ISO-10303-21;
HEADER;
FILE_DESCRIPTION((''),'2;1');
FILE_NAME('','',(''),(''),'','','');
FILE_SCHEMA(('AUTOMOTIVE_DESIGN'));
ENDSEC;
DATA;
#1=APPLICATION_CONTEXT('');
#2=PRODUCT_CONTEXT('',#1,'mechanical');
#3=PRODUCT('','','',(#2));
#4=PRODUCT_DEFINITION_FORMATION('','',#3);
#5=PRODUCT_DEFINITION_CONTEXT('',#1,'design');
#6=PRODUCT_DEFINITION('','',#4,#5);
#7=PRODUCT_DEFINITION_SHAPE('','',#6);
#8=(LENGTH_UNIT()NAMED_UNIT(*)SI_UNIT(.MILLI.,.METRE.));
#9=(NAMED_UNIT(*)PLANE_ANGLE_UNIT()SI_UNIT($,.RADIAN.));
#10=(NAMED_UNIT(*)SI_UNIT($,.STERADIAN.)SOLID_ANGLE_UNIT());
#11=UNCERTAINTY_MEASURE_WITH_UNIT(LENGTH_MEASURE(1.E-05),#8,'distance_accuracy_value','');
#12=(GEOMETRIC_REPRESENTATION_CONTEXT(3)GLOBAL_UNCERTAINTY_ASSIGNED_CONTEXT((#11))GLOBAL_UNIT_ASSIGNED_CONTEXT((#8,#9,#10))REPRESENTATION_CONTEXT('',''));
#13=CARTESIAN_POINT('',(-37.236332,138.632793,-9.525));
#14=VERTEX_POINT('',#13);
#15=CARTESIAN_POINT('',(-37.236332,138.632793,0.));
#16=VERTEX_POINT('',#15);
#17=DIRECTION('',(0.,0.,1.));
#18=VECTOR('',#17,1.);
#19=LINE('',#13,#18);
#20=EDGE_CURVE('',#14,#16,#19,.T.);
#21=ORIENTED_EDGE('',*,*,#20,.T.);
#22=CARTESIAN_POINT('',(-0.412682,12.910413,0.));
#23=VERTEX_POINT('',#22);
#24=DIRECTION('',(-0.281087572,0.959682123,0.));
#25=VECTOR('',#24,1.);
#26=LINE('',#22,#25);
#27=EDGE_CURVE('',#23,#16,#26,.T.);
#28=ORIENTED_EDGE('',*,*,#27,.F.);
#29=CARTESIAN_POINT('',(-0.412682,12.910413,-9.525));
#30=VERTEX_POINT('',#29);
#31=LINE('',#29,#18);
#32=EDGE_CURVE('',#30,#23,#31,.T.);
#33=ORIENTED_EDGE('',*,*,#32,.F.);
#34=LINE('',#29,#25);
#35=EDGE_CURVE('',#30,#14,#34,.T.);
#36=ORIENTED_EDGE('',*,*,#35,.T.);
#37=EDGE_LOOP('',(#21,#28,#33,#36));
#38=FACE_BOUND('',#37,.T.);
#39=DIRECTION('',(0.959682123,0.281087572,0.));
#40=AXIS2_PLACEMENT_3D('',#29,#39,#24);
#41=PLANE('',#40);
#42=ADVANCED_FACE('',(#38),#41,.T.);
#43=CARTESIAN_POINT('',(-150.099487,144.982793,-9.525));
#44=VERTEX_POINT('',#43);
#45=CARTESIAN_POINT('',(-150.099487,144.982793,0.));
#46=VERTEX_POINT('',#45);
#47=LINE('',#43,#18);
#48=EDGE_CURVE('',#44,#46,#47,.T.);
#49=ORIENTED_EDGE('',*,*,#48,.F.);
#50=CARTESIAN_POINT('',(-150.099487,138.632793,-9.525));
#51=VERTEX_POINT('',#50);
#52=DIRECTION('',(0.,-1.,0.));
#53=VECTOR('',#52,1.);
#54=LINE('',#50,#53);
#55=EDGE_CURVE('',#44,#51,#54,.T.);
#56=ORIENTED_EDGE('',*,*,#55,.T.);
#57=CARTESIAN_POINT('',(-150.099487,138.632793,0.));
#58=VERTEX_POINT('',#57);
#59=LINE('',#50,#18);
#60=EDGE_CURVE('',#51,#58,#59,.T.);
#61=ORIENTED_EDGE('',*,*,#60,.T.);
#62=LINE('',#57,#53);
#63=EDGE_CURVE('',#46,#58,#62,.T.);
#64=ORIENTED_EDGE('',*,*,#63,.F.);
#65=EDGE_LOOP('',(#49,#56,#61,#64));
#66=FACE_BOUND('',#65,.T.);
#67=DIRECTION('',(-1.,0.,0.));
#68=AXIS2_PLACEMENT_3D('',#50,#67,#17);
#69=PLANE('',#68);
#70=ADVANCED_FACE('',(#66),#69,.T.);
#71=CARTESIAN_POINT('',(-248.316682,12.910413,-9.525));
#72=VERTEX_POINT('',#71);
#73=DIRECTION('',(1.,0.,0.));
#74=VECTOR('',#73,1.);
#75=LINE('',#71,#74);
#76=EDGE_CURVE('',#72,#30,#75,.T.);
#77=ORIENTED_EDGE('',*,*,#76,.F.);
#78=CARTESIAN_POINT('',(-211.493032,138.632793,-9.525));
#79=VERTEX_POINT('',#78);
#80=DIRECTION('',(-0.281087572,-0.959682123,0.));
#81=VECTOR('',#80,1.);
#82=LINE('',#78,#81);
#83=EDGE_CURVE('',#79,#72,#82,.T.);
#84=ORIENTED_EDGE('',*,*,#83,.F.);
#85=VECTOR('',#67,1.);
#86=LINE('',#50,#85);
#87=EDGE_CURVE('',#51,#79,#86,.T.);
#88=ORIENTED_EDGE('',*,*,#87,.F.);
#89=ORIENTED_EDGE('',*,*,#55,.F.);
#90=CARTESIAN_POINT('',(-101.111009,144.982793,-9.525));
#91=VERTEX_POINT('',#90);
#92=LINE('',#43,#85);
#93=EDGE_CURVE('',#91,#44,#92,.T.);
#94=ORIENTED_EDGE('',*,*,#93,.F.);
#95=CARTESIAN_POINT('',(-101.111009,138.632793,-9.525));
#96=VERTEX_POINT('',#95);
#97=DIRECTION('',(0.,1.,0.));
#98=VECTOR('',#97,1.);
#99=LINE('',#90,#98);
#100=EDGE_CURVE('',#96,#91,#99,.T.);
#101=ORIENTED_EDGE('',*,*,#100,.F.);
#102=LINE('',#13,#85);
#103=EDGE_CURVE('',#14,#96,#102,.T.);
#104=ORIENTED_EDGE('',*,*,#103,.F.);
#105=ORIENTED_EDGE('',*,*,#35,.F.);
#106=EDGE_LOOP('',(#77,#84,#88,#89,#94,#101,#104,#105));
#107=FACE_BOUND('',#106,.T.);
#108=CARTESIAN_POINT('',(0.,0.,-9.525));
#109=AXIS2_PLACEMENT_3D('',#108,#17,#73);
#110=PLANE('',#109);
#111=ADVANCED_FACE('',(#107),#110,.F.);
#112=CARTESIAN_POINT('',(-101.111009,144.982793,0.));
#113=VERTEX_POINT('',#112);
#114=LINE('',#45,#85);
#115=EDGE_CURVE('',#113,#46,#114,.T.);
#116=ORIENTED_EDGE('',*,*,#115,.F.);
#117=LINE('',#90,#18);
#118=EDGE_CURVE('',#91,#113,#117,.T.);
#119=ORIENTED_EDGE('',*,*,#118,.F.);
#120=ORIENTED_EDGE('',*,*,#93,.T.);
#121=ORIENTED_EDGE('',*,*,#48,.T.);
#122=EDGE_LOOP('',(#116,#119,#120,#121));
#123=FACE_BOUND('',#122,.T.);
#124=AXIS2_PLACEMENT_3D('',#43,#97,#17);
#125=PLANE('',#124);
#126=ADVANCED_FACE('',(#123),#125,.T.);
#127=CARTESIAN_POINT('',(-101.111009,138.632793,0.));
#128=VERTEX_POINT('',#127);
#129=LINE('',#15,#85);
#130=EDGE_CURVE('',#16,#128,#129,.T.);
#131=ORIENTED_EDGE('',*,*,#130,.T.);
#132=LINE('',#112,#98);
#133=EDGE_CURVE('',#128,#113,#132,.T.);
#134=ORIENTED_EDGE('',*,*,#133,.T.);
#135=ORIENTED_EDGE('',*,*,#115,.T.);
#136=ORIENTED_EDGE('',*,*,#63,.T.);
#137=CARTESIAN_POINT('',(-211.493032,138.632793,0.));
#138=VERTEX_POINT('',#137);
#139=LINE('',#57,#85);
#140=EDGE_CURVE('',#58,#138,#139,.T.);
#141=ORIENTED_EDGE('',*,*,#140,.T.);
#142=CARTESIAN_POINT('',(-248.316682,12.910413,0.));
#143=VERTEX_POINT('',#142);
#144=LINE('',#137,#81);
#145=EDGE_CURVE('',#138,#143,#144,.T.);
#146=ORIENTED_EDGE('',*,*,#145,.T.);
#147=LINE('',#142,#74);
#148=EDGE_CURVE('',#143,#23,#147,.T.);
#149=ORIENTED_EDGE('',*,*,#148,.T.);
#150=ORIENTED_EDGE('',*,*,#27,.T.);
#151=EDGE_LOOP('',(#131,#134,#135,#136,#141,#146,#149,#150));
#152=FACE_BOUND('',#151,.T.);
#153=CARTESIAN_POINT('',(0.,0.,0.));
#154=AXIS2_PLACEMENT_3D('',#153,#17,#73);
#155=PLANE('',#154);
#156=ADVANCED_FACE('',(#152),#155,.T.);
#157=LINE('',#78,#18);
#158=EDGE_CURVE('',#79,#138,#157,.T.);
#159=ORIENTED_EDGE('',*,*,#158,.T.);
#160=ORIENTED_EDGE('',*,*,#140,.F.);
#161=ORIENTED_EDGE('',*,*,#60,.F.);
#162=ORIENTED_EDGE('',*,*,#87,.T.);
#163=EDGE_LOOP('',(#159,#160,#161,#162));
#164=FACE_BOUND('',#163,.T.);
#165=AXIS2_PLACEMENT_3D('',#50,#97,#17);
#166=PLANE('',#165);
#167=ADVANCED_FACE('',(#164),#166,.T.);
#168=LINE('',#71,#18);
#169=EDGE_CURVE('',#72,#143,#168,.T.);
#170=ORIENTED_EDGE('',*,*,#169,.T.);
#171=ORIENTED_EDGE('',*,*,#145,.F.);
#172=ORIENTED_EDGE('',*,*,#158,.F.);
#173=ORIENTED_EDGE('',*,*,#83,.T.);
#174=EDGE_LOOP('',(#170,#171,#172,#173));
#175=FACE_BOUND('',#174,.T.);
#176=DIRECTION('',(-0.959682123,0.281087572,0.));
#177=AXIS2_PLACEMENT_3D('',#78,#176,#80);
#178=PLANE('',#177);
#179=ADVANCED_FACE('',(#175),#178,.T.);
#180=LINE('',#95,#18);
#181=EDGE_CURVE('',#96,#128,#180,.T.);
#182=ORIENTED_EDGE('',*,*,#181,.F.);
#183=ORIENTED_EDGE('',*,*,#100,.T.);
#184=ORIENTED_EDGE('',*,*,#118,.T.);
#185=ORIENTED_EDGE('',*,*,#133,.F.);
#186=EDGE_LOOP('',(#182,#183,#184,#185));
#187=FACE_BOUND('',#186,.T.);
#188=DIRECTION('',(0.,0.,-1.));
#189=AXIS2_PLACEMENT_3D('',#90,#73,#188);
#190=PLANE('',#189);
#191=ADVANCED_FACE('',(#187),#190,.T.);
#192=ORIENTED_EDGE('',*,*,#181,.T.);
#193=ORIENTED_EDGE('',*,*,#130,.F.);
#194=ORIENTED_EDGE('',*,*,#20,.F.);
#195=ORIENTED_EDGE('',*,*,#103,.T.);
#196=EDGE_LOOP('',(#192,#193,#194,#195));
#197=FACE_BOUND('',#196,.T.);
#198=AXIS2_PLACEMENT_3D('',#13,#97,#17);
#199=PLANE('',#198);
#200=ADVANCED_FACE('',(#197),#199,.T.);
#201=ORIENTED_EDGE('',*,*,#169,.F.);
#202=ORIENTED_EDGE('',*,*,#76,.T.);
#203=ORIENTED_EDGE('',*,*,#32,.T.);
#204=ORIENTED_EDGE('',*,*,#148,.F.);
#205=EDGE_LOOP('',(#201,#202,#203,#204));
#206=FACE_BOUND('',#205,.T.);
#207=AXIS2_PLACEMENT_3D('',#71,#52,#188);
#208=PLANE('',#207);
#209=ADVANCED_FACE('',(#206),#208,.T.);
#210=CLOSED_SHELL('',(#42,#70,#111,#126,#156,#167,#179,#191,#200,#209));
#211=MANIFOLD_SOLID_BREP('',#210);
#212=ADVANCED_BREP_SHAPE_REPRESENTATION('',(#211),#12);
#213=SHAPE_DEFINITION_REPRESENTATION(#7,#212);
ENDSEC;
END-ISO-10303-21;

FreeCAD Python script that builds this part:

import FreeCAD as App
import Part
import Sketcher
Q = App.Units.Quantity

doc = App.newDocument("Part")
body = doc.addObject("PartDesign::Body", "Body")

sketch1 = body.newObject("Sketcher::SketchObject", "Sketch")
sketch1.AttachmentSupport = (doc.getObject("XY_Plane"), [""])
sketch1.MapMode = "FlatFace"
sketch1.addGeometry([
    Part.LineSegment(App.Vector(-211, 139, 0), App.Vector(-248, 13, 0)),
    Part.LineSegment(App.Vector(-248, 13, 0), App.Vector(0, 13, 0)),
    Part.LineSegment(App.Vector(0, 13, 0), App.Vector(-37, 139, 0)),
    Part.LineSegment(App.Vector(-37, 139, 0), App.Vector(-101, 139, 0)),
    Part.LineSegment(App.Vector(-101, 139, 0), App.Vector(-101, 145, 0)),
    Part.LineSegment(App.Vector(-101, 145, 0), App.Vector(-150, 145, 0)),
    Part.LineSegment(App.Vector(-150, 145, 0), App.Vector(-150, 139, 0)),
    Part.LineSegment(App.Vector(-150, 139, 0), App.Vector(-211, 139, 0)),
], False)
sketch1.addConstraint([
    Sketcher.Constraint("Coincident", 0, 2, 1, 1),
    Sketcher.Constraint("Coincident", 1, 2, 2, 1),
    Sketcher.Constraint("Coincident", 2, 2, 3, 1),
    Sketcher.Constraint("Coincident", 3, 2, 4, 1),
    Sketcher.Constraint("Coincident", 4, 2, 5, 1),
    Sketcher.Constraint("Coincident", 5, 2, 6, 1),
    Sketcher.Constraint("Coincident", 6, 2, 7, 1),
    Sketcher.Constraint("Coincident", 7, 2, 0, 1),
    Sketcher.Constraint("Horizontal", 1),
    Sketcher.Constraint("Horizontal", 3),
    Sketcher.Constraint("Vertical", 4),
    Sketcher.Constraint("Horizontal", 5),
    Sketcher.Constraint("Vertical", 6),
    Sketcher.Constraint("Horizontal", 7),
    Sketcher.Constraint("Horizontal", 3, 2, 6, 2),
    Sketcher.Constraint("Equal", 0, 2),
    Sketcher.Constraint("DistanceX", 1, 1, 1, 2, Q("9.76 in")),
    Sketcher.Constraint("DistanceY", 4, 1, 4, 2, Q("0.25 in")),
    Sketcher.Constraint("DistanceY", 1, 2, 2, 2, Q("4.9497 in")),
    Sketcher.Constraint("DistanceX", 5, 2, 5, 1, 48.988478),
    Sketcher.Constraint("Distance", 0, 131.004191),
    Sketcher.Constraint("DistanceX", 3, 2, 3, 1, 63.874677),
    Sketcher.Constraint("DistanceX", 3, 2, -1, 1, 101.111009),
    Sketcher.Constraint("DistanceY", -1, 1, 0, 2, 12.910413),
])
pad1 = body.newObject("PartDesign::Pad", "Pad")
pad1.Profile = sketch1
pad1.Length = Q("0.375 in")
pad1.Reversed = True

doc.recompute()
